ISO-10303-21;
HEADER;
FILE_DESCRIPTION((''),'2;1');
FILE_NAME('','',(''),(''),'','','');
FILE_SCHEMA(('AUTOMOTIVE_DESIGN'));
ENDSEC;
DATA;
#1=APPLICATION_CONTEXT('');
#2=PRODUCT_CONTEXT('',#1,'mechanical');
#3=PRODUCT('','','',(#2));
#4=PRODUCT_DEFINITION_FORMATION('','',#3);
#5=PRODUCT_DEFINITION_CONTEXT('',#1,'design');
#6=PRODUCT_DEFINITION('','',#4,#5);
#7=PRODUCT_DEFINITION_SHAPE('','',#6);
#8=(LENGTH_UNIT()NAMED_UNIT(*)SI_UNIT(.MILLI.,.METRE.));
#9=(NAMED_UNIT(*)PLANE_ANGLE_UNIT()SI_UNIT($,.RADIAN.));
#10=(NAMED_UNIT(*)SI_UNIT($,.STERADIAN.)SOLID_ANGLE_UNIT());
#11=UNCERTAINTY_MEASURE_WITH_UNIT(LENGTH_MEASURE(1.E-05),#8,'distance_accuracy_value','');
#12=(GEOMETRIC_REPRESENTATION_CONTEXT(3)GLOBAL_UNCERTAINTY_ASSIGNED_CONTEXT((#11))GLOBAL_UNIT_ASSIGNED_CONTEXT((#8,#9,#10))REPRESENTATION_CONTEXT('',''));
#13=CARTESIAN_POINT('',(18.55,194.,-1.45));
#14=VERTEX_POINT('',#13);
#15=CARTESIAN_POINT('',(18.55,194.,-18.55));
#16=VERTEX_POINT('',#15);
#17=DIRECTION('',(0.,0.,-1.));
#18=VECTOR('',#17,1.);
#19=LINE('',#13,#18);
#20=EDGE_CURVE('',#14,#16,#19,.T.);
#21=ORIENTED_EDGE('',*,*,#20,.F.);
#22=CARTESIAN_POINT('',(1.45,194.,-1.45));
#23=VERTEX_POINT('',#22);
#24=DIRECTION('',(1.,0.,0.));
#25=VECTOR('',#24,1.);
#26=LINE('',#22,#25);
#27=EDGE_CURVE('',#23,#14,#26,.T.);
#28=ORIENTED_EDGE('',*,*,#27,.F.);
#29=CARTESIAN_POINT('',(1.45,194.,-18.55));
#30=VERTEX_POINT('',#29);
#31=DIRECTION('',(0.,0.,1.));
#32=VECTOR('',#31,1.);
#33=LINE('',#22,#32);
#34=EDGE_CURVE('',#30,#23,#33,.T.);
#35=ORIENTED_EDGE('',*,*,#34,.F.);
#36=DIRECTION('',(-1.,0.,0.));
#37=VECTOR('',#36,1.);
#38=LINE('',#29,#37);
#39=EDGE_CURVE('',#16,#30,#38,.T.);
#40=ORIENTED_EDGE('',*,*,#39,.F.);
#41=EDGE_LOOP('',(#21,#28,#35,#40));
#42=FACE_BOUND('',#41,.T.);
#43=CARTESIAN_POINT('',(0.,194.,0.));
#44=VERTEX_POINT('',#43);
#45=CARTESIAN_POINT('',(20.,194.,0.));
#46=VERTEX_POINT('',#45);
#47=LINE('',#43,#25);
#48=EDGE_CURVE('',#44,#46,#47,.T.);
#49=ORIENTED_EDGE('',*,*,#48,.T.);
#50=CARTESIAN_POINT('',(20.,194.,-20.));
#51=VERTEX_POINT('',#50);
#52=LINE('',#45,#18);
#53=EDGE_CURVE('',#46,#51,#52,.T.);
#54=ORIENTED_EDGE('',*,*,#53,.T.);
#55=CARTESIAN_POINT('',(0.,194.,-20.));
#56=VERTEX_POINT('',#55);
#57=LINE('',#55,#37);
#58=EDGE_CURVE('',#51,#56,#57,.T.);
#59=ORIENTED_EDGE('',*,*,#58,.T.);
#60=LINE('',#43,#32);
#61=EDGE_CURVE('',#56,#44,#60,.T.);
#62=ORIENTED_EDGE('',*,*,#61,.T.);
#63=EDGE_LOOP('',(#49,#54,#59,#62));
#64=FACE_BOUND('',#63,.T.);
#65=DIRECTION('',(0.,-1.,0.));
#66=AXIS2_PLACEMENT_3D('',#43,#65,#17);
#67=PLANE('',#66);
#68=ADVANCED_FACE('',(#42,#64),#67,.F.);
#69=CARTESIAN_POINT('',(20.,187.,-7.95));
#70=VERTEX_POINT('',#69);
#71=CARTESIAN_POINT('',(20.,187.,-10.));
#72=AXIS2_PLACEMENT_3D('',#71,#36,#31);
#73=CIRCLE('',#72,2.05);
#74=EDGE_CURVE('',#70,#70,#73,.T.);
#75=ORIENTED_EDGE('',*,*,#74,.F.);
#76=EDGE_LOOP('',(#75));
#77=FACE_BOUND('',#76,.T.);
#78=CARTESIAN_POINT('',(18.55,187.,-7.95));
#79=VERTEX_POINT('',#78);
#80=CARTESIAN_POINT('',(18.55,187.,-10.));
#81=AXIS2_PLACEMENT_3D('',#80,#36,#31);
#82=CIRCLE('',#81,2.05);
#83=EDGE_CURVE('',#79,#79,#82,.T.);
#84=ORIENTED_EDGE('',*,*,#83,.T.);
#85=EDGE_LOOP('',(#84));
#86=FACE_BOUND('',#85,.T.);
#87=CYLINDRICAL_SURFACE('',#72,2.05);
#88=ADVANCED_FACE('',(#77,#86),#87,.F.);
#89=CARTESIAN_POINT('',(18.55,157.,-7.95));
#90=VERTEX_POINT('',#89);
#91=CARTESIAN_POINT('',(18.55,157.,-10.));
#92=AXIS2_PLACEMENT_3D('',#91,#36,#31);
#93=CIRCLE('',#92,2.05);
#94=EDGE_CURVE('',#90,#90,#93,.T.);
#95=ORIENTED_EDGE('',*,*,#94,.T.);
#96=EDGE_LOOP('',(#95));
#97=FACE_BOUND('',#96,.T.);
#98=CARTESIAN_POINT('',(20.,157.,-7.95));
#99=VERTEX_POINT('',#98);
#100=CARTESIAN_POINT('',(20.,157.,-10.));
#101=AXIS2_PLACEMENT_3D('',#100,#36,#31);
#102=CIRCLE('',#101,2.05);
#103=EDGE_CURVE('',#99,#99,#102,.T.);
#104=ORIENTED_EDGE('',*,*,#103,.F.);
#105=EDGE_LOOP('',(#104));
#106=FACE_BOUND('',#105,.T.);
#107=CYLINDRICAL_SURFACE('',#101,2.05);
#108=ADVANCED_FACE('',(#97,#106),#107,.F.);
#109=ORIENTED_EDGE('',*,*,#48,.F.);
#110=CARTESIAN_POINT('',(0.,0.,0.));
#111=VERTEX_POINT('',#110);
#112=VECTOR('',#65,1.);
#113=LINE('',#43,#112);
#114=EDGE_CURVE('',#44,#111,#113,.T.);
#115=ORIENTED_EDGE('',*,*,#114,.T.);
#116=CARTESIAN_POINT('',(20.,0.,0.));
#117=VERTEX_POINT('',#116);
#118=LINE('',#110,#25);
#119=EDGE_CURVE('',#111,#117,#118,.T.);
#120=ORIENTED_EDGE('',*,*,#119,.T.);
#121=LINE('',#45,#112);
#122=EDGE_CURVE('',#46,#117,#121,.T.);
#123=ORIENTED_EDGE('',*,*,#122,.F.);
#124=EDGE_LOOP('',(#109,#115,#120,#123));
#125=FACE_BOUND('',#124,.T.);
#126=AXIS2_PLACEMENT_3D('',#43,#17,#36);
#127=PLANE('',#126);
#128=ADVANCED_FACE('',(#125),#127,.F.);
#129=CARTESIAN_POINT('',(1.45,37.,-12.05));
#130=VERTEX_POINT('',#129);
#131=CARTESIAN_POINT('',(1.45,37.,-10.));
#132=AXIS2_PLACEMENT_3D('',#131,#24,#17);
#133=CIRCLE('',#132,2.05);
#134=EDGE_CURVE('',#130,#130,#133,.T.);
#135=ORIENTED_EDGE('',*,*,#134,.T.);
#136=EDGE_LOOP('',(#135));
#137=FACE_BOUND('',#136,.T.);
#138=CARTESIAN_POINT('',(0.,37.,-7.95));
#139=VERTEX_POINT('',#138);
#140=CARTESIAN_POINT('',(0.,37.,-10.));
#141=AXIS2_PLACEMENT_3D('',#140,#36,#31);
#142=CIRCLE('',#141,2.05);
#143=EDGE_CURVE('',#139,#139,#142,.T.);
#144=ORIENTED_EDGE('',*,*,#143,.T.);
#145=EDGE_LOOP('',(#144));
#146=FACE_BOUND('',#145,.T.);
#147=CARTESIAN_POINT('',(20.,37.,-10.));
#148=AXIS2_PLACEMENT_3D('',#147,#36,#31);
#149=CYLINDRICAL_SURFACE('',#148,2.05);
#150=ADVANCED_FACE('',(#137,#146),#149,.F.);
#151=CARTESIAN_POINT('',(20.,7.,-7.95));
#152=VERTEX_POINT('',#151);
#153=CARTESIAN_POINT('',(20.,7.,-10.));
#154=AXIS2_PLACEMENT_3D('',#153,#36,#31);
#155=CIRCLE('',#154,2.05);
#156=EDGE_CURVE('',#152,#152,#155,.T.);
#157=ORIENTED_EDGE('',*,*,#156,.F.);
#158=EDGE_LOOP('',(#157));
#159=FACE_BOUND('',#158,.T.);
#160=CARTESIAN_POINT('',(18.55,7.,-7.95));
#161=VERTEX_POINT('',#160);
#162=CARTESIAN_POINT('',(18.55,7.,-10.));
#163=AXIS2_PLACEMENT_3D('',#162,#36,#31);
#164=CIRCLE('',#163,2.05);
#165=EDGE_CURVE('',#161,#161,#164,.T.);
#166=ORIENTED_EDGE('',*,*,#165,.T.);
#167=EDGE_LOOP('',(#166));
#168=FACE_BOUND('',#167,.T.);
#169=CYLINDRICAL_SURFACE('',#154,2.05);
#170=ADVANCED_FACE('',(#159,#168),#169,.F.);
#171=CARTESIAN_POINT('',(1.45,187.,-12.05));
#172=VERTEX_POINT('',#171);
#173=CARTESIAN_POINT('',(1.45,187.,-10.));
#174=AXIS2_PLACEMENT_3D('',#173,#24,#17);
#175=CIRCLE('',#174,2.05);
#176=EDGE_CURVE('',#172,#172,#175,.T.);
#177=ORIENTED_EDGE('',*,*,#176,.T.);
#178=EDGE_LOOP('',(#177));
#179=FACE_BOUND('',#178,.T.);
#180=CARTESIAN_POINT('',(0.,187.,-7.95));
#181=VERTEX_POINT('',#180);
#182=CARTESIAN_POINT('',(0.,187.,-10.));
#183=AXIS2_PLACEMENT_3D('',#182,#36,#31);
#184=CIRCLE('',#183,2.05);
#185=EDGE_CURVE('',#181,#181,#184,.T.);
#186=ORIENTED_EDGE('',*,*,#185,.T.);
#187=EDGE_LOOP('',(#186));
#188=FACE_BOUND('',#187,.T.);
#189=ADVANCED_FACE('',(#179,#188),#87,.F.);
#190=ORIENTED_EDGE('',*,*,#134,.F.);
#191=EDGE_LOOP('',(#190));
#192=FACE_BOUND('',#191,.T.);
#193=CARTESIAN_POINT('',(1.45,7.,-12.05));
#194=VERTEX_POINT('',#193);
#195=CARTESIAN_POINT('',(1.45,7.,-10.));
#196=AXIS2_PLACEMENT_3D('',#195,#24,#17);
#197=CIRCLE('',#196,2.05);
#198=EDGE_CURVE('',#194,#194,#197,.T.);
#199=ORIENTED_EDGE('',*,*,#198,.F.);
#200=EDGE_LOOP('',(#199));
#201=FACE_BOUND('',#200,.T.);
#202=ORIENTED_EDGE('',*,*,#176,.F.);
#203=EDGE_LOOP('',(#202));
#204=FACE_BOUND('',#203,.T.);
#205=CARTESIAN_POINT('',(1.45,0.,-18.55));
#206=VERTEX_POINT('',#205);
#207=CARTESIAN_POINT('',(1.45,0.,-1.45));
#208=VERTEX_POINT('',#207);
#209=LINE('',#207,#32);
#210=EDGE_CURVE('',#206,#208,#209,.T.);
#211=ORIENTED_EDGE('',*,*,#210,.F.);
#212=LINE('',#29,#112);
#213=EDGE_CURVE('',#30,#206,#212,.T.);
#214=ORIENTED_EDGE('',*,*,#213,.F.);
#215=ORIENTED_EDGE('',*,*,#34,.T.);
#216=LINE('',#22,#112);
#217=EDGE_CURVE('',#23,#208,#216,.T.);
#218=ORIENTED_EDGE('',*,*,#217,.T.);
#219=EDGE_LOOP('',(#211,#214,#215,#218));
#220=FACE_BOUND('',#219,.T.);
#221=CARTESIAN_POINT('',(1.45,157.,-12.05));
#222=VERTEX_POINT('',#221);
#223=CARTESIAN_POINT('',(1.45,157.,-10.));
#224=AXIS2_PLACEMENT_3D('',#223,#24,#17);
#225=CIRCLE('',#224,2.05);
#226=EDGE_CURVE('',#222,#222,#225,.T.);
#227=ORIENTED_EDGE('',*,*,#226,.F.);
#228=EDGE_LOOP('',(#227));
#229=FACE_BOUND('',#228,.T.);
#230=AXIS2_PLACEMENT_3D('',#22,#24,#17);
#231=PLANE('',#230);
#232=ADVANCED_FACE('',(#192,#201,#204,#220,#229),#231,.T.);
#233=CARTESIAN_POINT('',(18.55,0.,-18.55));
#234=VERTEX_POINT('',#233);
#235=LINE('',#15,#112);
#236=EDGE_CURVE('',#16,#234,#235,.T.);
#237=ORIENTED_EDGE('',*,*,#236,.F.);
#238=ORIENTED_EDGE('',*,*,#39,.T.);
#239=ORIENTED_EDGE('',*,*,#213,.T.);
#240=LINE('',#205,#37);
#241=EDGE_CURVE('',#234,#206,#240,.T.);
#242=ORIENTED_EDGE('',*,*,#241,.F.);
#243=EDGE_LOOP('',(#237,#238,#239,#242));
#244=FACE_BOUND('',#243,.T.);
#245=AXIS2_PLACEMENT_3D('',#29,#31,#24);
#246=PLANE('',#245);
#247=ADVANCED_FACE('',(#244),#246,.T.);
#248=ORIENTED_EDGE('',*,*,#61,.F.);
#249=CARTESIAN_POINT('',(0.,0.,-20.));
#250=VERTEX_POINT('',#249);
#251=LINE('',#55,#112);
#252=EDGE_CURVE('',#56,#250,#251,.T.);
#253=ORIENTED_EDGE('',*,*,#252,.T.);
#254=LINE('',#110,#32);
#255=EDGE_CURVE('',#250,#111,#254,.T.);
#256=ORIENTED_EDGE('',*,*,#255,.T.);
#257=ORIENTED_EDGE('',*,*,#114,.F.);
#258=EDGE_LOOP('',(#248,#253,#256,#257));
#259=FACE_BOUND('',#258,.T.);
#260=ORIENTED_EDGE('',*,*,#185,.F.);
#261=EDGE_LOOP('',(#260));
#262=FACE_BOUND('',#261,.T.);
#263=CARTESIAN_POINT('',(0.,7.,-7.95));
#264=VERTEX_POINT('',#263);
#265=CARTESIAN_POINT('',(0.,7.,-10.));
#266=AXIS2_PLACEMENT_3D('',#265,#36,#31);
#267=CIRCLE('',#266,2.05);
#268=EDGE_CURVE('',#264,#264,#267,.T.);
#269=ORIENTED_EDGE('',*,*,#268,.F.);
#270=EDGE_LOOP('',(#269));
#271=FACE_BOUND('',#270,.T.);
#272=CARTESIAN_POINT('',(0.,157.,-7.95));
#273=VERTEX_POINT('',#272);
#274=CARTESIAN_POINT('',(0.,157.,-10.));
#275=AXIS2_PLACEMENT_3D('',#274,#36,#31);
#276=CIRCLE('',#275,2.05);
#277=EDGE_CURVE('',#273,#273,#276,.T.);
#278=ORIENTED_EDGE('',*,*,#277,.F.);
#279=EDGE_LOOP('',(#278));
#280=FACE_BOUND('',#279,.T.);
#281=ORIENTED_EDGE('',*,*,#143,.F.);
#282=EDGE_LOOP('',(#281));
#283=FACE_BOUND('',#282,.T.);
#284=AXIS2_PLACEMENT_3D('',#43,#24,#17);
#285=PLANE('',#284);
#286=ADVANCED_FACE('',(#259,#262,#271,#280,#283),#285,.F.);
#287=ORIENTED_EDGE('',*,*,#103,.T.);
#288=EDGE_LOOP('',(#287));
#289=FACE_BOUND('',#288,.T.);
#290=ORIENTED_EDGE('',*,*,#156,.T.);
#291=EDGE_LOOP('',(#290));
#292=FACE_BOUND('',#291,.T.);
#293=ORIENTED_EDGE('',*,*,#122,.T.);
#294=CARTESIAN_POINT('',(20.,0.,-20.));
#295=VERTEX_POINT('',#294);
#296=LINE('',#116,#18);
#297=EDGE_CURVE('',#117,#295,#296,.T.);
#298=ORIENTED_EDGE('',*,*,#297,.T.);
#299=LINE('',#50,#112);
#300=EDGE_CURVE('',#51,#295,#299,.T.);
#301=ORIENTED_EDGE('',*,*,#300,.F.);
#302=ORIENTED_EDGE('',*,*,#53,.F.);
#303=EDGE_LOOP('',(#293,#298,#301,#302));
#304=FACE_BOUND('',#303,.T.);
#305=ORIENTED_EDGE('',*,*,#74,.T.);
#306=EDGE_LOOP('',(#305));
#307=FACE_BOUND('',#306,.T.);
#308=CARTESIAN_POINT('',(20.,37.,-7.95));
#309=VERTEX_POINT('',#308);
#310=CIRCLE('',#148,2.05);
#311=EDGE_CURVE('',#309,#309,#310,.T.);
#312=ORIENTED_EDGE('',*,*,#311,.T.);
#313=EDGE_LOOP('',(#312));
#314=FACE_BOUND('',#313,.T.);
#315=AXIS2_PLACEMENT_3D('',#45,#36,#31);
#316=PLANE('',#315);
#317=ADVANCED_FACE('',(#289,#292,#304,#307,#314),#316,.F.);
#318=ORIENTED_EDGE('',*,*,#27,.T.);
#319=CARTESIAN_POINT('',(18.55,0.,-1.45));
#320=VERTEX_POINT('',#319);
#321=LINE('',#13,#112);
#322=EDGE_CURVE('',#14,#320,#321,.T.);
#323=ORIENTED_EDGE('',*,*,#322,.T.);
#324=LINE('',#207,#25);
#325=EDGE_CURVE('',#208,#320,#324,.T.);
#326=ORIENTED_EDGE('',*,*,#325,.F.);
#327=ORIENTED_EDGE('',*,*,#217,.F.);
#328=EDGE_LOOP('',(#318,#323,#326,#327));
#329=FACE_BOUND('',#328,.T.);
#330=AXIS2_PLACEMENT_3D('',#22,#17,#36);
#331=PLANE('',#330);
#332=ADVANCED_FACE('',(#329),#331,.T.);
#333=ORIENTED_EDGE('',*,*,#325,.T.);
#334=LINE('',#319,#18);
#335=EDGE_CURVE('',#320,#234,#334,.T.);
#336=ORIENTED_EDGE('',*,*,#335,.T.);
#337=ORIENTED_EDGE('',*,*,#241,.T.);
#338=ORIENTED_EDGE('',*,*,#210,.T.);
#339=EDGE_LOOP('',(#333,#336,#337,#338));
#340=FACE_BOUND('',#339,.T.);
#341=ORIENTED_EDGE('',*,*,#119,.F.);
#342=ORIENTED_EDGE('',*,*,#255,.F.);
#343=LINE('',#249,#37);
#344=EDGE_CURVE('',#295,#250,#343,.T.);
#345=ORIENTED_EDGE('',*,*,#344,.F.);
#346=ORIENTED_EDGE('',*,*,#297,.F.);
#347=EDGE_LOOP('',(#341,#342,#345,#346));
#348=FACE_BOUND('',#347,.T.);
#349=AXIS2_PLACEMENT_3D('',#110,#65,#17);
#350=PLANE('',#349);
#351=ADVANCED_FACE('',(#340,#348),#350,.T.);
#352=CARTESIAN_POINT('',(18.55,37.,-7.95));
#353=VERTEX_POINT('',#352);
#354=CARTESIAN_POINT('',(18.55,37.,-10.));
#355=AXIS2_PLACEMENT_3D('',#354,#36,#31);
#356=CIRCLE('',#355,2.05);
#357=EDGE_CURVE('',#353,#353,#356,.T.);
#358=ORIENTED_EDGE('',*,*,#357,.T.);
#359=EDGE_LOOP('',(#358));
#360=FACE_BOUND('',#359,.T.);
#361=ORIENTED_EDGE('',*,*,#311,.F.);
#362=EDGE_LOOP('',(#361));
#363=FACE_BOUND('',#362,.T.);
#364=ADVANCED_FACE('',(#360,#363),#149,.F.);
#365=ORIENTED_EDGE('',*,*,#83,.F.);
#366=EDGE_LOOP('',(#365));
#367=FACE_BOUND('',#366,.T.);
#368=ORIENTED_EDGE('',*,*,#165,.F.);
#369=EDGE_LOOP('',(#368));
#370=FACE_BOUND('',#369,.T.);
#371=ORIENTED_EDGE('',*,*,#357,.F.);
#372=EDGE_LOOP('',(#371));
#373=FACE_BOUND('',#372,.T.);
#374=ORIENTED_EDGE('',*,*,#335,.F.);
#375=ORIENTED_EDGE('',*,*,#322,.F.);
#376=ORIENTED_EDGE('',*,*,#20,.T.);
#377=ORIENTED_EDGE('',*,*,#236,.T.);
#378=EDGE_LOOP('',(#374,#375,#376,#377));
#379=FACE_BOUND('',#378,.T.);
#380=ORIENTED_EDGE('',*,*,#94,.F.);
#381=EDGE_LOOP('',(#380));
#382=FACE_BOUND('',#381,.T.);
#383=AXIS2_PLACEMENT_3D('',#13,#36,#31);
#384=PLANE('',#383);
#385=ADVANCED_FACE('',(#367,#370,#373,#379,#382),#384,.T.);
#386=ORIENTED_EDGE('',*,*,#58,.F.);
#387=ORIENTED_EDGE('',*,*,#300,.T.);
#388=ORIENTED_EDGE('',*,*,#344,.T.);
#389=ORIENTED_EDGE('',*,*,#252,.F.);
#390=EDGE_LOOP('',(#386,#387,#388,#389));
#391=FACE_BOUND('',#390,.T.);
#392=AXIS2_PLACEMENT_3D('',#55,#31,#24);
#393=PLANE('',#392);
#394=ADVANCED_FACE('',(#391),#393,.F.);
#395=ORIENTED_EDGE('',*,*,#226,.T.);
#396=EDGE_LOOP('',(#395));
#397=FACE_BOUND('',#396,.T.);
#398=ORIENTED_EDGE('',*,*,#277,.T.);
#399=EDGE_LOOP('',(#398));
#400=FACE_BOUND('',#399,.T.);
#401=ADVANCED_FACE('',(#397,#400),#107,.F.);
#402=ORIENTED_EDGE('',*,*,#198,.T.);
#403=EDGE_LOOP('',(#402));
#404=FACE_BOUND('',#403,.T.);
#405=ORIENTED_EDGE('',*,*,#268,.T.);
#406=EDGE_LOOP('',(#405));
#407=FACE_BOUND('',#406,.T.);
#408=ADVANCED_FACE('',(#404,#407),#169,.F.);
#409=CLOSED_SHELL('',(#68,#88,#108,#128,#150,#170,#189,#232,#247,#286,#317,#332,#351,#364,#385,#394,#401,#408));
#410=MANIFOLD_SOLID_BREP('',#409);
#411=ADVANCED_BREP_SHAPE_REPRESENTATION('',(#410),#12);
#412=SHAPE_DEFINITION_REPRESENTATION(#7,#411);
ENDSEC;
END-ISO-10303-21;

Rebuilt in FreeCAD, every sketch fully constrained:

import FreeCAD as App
import Part
import Sketcher
Q = App.Units.Quantity

doc = App.newDocument("Part")
params = doc.addObject("Spreadsheet::Sheet", "Params")
for row, (alias, value) in enumerate([
    ("sketch1_width", "20 mm"),
    ("sketch1_width2", "17.1 mm"),
    ("pad1_length", "194 mm"),
    ("sketch2_diameter", "4.1 mm"),
], start=1):
    params.set(f"A{row}", alias)
    params.set(f"B{row}", "=" + value)
    params.setAlias(f"B{row}", alias)

body = doc.addObject("PartDesign::Body", "Body")

# Sketch on XZ plane
sketch1 = body.newObject("Sketcher::SketchObject", "Sketch")
sketch1.AttachmentSupport = (doc.getObject("XZ_Plane"), [""])
sketch1.MapMode = "FlatFace"
sketch1.addGeometry([
    Part.LineSegment(App.Vector(0, -20, 0), App.Vector(0, 0, 0)),  # 0
    Part.LineSegment(App.Vector(0, 0, 0), App.Vector(20, 0, 0)),  # 1
    Part.LineSegment(App.Vector(20, 0, 0), App.Vector(20, -20, 0)),  # 2
    Part.LineSegment(App.Vector(20, -20, 0), App.Vector(0, -20, 0)),  # 3
    Part.LineSegment(App.Vector(19, -1, 0), App.Vector(1, -1, 0)),  # 4
    Part.LineSegment(App.Vector(1, -1, 0), App.Vector(1, -19, 0)),  # 5
    Part.LineSegment(App.Vector(1, -19, 0), App.Vector(19, -19, 0)),  # 6
    Part.LineSegment(App.Vector(19, -19, 0), App.Vector(19, -1, 0)),  # 7
], False)
sketch1.addConstraint([
    Sketcher.Constraint("Coincident", 0, 2, 1, 1),
    Sketcher.Constraint("Coincident", 1, 2, 2, 1),
    Sketcher.Constraint("Coincident", 2, 2, 3, 1),
    Sketcher.Constraint("Coincident", 3, 2, 0, 1),
    Sketcher.Constraint("Coincident", 4, 2, 5, 1),
    Sketcher.Constraint("Coincident", 5, 2, 6, 1),
    Sketcher.Constraint("Coincident", 6, 2, 7, 1),
    Sketcher.Constraint("Coincident", 7, 2, 4, 1),
    Sketcher.Constraint("Vertical", 0),
    Sketcher.Constraint("Horizontal", 1),
    Sketcher.Constraint("Vertical", 2),
    Sketcher.Constraint("Horizontal", 3),
    Sketcher.Constraint("Horizontal", 4),
    Sketcher.Constraint("Vertical", 5),
    Sketcher.Constraint("Horizontal", 6),
    Sketcher.Constraint("Vertical", 7),
    Sketcher.Constraint("Coincident", 0, 2, -1, 1),
    Sketcher.Constraint("Equal", 3, 0),
    Sketcher.Constraint("Equal", 6, 5),
    Sketcher.Constraint("DistanceX", 1, 1, 1, 2, Q("20 mm")),
    Sketcher.Constraint("DistanceX", 4, 2, 4, 1, Q("17.1 mm")),
    Sketcher.Constraint("DistanceX", -1, 1, 4, 2, Q("1.45 mm")),
    Sketcher.Constraint("DistanceY", 4, 2, -1, 1, Q("1.45 mm")),
])
sketch1.setExpression("Constraints[19]", "Params.sketch1_width")
sketch1.setExpression("Constraints[20]", "Params.sketch1_width2")
pad1 = body.newObject("PartDesign::Pad", "Pad")
pad1.Profile = sketch1
pad1.setExpression("Length", "Params.pad1_length")
pad1.Reversed = True

# Sketch on YZ plane
sketch2 = body.newObject("Sketcher::SketchObject", "Sketch001")
sketch2.AttachmentSupport = (doc.getObject("YZ_Plane"), [""])
sketch2.MapMode = "FlatFace"
sketch2.addGeometry([
    Part.Circle(App.Vector(187, -10, 0), App.Vector(0, 0, 1), 2),
    Part.Circle(App.Vector(157, -10, 0), App.Vector(0, 0, 1), 2),
    Part.Circle(App.Vector(37, -10, 0), App.Vector(0, 0, 1), 2),
    Part.Circle(App.Vector(7, -10, 0), App.Vector(0, 0, 1), 2),
], False)
sketch2.addConstraint([
    Sketcher.Constraint("Equal", 0, 1),
    Sketcher.Constraint("Equal", 1, 2),
    Sketcher.Constraint("Equal", 2, 3),
    Sketcher.Constraint("Horizontal", 0, 3, 1, 3),
    Sketcher.Constraint("Horizontal", 1, 3, 2, 3),
    Sketcher.Constraint("Horizontal", 2, 3, 3, 3),
    Sketcher.Constraint("Diameter", 0, Q("4.1 mm")),
    Sketcher.Constraint("DistanceX", -1, 1, 0, 3, Q("187 mm")),
    Sketcher.Constraint("DistanceY", 0, 3, -1, 1, Q("10 mm")),
    Sketcher.Constraint("DistanceX", -1, 1, 1, 3, Q("157 mm")),
    Sketcher.Constraint("DistanceX", -1, 1, 2, 3, Q("37 mm")),
    Sketcher.Constraint("DistanceX", -1, 1, 3, 3, Q("7 mm")),
])
sketch2.setExpression("Constraints[6]", "Params.sketch2_diameter")
pocket1 = body.newObject("PartDesign::Pocket", "Pocket")
pocket1.Profile = sketch2
pocket1.Type = "ThroughAll"
pocket1.Reversed = True

doc.recompute()
